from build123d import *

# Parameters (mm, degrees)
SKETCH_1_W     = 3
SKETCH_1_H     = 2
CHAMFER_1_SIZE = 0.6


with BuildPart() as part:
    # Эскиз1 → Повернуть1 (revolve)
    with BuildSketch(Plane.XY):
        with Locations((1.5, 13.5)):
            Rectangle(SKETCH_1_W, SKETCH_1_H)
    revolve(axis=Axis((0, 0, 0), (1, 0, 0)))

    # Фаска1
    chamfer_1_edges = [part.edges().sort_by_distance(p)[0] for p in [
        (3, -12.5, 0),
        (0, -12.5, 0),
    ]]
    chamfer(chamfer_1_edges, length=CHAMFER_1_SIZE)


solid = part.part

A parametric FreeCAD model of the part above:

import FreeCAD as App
import Part
import Sketcher
Q = App.Units.Quantity


def edges_at(feature, points):
    """Names of the edges that pass closest to the given points."""
    edges = feature.Shape.Edges
    near = lambda p: min(range(len(edges)), key=lambda i: edges[i].distToShape(Part.Vertex(*p))[0])
    return sorted({f"Edge{near(p) + 1}" for p in points})


def add_polygon(sketch, points):
    """Adds a closed chain of lines whose ends are joined by coincident constraints."""
    first, n = sketch.GeometryCount, len(points)
    for a, b in zip(points, points[1:] + points[:1]):
        sketch.addGeometry(Part.LineSegment(App.Vector(*a, 0), App.Vector(*b, 0)), False)
    for i in range(n):
        sketch.addConstraint(Sketcher.Constraint("Coincident", first + i, 2, first + (i + 1) % n, 1))

doc = App.newDocument("Part")
body = doc.addObject("PartDesign::Body", "Body")

sketch1 = body.newObject("Sketcher::SketchObject", "Sketch")
sketch1.AttachmentSupport = (doc.getObject("XY_Plane"), [""])
sketch1.MapMode = "FlatFace"
add_polygon(sketch1, [(0, 14.5), (0, 12.5), (3, 12.5), (3, 14.5)])
sketch1.addConstraint([
    Sketcher.Constraint("Vertical", 0),
    Sketcher.Constraint("Horizontal", 1),
    Sketcher.Constraint("Vertical", 2),
    Sketcher.Constraint("Horizontal", 3),
    Sketcher.Constraint("PointOnObject", 0, 2, -2),
    Sketcher.Constraint("DistanceX", 1, 1, 1, 2, Q("3 mm")),
    Sketcher.Constraint("DistanceY", 0, 2, 0, 1, Q("2 mm")),
    Sketcher.Constraint("DistanceY", -1, 1, 0, 2, Q("12.5 mm")),
])
revolution = body.newObject("PartDesign::Revolution", "Revolution")
revolution.Profile = sketch1
revolution.ReferenceAxis = (sketch1, ["H_Axis"])
revolution.Angle = 360
doc.recompute()

chamfer = body.newObject("PartDesign::Chamfer", "Chamfer")
chamfer.Base = (revolution, edges_at(revolution, [(3, -12.5, 0), (0, -12.5, 0)]))
chamfer.Size = 0.6

doc.recompute()
